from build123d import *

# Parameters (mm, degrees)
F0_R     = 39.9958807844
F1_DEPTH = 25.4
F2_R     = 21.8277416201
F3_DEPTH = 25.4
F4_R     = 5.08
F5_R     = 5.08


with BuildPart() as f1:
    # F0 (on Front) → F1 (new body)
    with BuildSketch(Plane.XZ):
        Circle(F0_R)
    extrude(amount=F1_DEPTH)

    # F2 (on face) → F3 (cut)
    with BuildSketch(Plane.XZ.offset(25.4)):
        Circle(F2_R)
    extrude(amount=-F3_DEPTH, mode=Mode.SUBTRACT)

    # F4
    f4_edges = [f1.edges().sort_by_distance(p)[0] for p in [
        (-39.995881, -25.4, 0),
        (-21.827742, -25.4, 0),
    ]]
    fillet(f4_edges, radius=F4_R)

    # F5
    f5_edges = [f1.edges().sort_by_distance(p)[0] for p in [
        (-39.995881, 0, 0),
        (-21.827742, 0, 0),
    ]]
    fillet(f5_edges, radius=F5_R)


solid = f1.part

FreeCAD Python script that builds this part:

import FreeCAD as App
import Part
import Sketcher
Q = App.Units.Quantity


def edges_at(feature, points):
    """Names of the edges that pass closest to the given points."""
    edges = feature.Shape.Edges
    near = lambda p: min(range(len(edges)), key=lambda i: edges[i].distToShape(Part.Vertex(*p))[0])
    return sorted({f"Edge{near(p) + 1}" for p in points})

doc = App.newDocument("Part")
body = doc.addObject("PartDesign::Body", "Body")

sketch1 = body.newObject("Sketcher::SketchObject", "Sketch")
sketch1.AttachmentSupport = (doc.getObject("XZ_Plane"), [""])
sketch1.MapMode = "FlatFace"
sketch1.addGeometry(Part.Circle(App.Vector(0, 0, 0), App.Vector(0, 0, 1), 40), False)
sketch1.addConstraint([
    Sketcher.Constraint("Coincident", 0, 3, -1, 1),
    Sketcher.Constraint("Diameter", 0, 79.991762),
])
pad1 = body.newObject("PartDesign::Pad", "Pad")
pad1.Profile = sketch1
pad1.Length = Q("1 in")

sketch2 = body.newObject("Sketcher::SketchObject", "Sketch001")
sketch2.AttachmentSupport = (doc.getObject("XZ_Plane"), [""])
sketch2.MapMode = "FlatFace"
sketch2.AttachmentOffset = App.Placement(App.Vector(0, 0, 1 * 25.4), App.Rotation())
sketch2.addGeometry(Part.Circle(App.Vector(0, 0, 0), App.Vector(0, 0, 1), 22), False)
sketch2.addConstraint([
    Sketcher.Constraint("Coincident", 0, 3, -1, 1),
    Sketcher.Constraint("Diameter", 0, 43.655483),
])
pocket1 = body.newObject("PartDesign::Pocket", "Pocket")
pocket1.Profile = sketch2
pocket1.Length = Q("1 in")
doc.recompute()

fillet = body.newObject("PartDesign::Fillet", "Fillet")
fillet.Base = (pocket1, edges_at(pocket1, [(-39.996, -25.4, 0), (-21.828, -25.4, 0)]))
fillet.Radius = Q("0.2 in")
doc.recompute()

fillet2 = body.newObject("PartDesign::Fillet", "Fillet001")
fillet2.Base = (fillet, edges_at(fillet, [(-39.996, 0, 0), (-21.828, 0, 0)]))
fillet2.Radius = Q("0.2 in")

doc.recompute()
